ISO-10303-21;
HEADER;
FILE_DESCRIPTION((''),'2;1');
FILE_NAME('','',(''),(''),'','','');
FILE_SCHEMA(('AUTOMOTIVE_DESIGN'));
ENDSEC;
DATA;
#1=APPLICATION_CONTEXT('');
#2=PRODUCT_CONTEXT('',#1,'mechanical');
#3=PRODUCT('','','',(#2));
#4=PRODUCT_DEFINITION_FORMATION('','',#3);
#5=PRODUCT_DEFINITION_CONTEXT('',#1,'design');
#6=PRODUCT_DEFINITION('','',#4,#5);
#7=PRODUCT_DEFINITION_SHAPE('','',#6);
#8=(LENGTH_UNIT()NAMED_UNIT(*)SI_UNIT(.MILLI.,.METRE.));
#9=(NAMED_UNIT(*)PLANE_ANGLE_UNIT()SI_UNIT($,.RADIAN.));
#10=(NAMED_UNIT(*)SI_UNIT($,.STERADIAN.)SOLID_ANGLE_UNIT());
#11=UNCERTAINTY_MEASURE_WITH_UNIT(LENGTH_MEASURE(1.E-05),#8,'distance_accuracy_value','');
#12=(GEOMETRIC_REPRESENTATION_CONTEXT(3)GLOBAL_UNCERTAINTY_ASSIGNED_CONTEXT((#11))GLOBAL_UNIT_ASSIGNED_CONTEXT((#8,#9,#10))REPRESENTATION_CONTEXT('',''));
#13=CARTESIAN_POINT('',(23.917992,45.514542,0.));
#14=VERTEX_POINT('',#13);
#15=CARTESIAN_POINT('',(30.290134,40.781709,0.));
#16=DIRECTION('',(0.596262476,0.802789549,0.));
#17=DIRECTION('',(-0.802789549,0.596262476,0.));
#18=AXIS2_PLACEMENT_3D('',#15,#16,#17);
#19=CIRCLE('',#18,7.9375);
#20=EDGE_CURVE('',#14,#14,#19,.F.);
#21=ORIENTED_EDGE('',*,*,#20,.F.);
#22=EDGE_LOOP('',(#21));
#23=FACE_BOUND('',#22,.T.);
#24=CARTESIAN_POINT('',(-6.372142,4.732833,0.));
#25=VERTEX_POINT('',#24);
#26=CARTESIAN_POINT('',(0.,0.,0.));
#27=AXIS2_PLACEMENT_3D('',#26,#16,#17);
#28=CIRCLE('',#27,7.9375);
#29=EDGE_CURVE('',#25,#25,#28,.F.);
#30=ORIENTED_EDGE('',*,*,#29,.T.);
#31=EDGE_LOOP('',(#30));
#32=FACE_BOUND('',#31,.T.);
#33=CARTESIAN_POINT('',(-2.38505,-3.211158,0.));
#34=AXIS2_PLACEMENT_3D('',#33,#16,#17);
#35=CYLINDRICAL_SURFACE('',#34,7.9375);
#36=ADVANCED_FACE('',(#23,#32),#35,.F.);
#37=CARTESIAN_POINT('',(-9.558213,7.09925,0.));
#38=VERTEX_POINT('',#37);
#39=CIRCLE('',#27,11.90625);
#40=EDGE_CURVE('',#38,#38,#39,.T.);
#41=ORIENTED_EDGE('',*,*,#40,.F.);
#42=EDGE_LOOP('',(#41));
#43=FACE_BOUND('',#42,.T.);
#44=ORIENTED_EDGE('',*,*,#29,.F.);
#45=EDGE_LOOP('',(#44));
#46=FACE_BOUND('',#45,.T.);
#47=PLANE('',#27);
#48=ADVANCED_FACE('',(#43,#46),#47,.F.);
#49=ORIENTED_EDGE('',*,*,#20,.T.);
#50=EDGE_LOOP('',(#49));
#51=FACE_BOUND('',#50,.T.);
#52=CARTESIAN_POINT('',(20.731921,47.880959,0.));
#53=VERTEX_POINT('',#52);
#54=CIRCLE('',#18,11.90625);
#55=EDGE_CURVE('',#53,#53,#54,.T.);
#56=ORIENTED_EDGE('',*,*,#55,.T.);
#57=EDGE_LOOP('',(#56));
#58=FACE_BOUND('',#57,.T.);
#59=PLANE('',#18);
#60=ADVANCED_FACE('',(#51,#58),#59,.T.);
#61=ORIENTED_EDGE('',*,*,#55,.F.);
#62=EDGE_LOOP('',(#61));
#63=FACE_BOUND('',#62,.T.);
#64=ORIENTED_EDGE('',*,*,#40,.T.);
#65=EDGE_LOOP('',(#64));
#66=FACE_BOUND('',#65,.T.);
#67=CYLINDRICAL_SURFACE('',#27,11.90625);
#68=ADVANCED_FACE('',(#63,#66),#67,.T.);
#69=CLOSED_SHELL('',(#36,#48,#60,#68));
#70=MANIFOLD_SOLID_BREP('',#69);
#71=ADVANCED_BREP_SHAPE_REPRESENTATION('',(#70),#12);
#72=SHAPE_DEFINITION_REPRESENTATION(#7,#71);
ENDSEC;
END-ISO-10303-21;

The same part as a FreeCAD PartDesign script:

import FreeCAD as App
import Part
import Sketcher

V = App.Vector
Q = App.Units.Quantity

doc = App.newDocument("Part")
body = doc.addObject("PartDesign::Body", "Body")

sketch1 = body.newObject("Sketcher::SketchObject", "Sketch")
sketch1.Placement = App.Placement(V(0, 0, 0), App.Rotation(V(0.802789549, -0.596262476, 0), V(0, 0, -1), V(0.596262476, 0.802789549, 0), "ZXY"))
sketch1.addGeometry(Part.Circle(V(0, 0, 0), V(0, 0, 1), 12), False)
sketch1.addConstraint([
    Sketcher.Constraint("Coincident", 0, 3, -1, 1),
    Sketcher.Constraint("Diameter", 0, Q("0.9375 in")),
])

sketch2 = body.newObject("Sketcher::SketchObject", "Sketch001")
sketch2.Placement = App.Placement(V(0, 0, 0), App.Rotation(V(0.596262476, 0.802789549, 0), V(0, 0, 1), V(0.802789549, -0.596262476, 0), "ZXY"))
sketch2.addGeometry(Part.LineSegment(V(0, 0, 0), V(51, 0, 0)), False)
sketch2.addConstraint([
    Sketcher.Constraint("Horizontal", 0),
    Sketcher.Constraint("Coincident", 0, 1, -1, 1),
    Sketcher.Constraint("DistanceX", 0, 1, 0, 2, Q("2 in")),
])
doc.recompute()

additivepipe = body.newObject("PartDesign::AdditivePipe", "AdditivePipe")
additivepipe.Profile = sketch1
additivepipe.Spine = (sketch2, ["Edge1"])

sketch3 = body.newObject("Sketcher::SketchObject", "Sketch002")
sketch3.Placement = App.Placement(V(0, 0, 0), App.Rotation(V(0.802789549, -0.596262476, 0), V(0, 0, -1), V(0.596262476, 0.802789549, 0), "ZXY"))
sketch3.addGeometry(Part.Circle(V(0, 0, 0), V(0, 0, 1), 8), False)
sketch3.addConstraint([
    Sketcher.Constraint("Coincident", 0, 3, -1, 1),
    Sketcher.Constraint("Diameter", 0, Q("0.625 in")),
])

sketch4 = body.newObject("Sketcher::SketchObject", "Sketch003")
sketch4.Placement = App.Placement(V(0, 0, 0), App.Rotation(V(0.596262476, 0.802789549, 0), V(0, 0, 1), V(0.802789549, -0.596262476, 0), "ZXY"))
sketch4.addGeometry(Part.LineSegment(V(0, 0, 0), V(51, 0, 0)), False)
sketch4.addConstraint([
    Sketcher.Constraint("Horizontal", 0),
    Sketcher.Constraint("Coincident", 0, 1, -1, 1),
    Sketcher.Constraint("DistanceX", 0, 1, 0, 2, Q("2 in")),
])
doc.recompute()

subtractivepipe = body.newObject("PartDesign::SubtractivePipe", "SubtractivePipe")
subtractivepipe.Profile = sketch3
subtractivepipe.Spine = (sketch4, ["Edge1"])

doc.recompute()
